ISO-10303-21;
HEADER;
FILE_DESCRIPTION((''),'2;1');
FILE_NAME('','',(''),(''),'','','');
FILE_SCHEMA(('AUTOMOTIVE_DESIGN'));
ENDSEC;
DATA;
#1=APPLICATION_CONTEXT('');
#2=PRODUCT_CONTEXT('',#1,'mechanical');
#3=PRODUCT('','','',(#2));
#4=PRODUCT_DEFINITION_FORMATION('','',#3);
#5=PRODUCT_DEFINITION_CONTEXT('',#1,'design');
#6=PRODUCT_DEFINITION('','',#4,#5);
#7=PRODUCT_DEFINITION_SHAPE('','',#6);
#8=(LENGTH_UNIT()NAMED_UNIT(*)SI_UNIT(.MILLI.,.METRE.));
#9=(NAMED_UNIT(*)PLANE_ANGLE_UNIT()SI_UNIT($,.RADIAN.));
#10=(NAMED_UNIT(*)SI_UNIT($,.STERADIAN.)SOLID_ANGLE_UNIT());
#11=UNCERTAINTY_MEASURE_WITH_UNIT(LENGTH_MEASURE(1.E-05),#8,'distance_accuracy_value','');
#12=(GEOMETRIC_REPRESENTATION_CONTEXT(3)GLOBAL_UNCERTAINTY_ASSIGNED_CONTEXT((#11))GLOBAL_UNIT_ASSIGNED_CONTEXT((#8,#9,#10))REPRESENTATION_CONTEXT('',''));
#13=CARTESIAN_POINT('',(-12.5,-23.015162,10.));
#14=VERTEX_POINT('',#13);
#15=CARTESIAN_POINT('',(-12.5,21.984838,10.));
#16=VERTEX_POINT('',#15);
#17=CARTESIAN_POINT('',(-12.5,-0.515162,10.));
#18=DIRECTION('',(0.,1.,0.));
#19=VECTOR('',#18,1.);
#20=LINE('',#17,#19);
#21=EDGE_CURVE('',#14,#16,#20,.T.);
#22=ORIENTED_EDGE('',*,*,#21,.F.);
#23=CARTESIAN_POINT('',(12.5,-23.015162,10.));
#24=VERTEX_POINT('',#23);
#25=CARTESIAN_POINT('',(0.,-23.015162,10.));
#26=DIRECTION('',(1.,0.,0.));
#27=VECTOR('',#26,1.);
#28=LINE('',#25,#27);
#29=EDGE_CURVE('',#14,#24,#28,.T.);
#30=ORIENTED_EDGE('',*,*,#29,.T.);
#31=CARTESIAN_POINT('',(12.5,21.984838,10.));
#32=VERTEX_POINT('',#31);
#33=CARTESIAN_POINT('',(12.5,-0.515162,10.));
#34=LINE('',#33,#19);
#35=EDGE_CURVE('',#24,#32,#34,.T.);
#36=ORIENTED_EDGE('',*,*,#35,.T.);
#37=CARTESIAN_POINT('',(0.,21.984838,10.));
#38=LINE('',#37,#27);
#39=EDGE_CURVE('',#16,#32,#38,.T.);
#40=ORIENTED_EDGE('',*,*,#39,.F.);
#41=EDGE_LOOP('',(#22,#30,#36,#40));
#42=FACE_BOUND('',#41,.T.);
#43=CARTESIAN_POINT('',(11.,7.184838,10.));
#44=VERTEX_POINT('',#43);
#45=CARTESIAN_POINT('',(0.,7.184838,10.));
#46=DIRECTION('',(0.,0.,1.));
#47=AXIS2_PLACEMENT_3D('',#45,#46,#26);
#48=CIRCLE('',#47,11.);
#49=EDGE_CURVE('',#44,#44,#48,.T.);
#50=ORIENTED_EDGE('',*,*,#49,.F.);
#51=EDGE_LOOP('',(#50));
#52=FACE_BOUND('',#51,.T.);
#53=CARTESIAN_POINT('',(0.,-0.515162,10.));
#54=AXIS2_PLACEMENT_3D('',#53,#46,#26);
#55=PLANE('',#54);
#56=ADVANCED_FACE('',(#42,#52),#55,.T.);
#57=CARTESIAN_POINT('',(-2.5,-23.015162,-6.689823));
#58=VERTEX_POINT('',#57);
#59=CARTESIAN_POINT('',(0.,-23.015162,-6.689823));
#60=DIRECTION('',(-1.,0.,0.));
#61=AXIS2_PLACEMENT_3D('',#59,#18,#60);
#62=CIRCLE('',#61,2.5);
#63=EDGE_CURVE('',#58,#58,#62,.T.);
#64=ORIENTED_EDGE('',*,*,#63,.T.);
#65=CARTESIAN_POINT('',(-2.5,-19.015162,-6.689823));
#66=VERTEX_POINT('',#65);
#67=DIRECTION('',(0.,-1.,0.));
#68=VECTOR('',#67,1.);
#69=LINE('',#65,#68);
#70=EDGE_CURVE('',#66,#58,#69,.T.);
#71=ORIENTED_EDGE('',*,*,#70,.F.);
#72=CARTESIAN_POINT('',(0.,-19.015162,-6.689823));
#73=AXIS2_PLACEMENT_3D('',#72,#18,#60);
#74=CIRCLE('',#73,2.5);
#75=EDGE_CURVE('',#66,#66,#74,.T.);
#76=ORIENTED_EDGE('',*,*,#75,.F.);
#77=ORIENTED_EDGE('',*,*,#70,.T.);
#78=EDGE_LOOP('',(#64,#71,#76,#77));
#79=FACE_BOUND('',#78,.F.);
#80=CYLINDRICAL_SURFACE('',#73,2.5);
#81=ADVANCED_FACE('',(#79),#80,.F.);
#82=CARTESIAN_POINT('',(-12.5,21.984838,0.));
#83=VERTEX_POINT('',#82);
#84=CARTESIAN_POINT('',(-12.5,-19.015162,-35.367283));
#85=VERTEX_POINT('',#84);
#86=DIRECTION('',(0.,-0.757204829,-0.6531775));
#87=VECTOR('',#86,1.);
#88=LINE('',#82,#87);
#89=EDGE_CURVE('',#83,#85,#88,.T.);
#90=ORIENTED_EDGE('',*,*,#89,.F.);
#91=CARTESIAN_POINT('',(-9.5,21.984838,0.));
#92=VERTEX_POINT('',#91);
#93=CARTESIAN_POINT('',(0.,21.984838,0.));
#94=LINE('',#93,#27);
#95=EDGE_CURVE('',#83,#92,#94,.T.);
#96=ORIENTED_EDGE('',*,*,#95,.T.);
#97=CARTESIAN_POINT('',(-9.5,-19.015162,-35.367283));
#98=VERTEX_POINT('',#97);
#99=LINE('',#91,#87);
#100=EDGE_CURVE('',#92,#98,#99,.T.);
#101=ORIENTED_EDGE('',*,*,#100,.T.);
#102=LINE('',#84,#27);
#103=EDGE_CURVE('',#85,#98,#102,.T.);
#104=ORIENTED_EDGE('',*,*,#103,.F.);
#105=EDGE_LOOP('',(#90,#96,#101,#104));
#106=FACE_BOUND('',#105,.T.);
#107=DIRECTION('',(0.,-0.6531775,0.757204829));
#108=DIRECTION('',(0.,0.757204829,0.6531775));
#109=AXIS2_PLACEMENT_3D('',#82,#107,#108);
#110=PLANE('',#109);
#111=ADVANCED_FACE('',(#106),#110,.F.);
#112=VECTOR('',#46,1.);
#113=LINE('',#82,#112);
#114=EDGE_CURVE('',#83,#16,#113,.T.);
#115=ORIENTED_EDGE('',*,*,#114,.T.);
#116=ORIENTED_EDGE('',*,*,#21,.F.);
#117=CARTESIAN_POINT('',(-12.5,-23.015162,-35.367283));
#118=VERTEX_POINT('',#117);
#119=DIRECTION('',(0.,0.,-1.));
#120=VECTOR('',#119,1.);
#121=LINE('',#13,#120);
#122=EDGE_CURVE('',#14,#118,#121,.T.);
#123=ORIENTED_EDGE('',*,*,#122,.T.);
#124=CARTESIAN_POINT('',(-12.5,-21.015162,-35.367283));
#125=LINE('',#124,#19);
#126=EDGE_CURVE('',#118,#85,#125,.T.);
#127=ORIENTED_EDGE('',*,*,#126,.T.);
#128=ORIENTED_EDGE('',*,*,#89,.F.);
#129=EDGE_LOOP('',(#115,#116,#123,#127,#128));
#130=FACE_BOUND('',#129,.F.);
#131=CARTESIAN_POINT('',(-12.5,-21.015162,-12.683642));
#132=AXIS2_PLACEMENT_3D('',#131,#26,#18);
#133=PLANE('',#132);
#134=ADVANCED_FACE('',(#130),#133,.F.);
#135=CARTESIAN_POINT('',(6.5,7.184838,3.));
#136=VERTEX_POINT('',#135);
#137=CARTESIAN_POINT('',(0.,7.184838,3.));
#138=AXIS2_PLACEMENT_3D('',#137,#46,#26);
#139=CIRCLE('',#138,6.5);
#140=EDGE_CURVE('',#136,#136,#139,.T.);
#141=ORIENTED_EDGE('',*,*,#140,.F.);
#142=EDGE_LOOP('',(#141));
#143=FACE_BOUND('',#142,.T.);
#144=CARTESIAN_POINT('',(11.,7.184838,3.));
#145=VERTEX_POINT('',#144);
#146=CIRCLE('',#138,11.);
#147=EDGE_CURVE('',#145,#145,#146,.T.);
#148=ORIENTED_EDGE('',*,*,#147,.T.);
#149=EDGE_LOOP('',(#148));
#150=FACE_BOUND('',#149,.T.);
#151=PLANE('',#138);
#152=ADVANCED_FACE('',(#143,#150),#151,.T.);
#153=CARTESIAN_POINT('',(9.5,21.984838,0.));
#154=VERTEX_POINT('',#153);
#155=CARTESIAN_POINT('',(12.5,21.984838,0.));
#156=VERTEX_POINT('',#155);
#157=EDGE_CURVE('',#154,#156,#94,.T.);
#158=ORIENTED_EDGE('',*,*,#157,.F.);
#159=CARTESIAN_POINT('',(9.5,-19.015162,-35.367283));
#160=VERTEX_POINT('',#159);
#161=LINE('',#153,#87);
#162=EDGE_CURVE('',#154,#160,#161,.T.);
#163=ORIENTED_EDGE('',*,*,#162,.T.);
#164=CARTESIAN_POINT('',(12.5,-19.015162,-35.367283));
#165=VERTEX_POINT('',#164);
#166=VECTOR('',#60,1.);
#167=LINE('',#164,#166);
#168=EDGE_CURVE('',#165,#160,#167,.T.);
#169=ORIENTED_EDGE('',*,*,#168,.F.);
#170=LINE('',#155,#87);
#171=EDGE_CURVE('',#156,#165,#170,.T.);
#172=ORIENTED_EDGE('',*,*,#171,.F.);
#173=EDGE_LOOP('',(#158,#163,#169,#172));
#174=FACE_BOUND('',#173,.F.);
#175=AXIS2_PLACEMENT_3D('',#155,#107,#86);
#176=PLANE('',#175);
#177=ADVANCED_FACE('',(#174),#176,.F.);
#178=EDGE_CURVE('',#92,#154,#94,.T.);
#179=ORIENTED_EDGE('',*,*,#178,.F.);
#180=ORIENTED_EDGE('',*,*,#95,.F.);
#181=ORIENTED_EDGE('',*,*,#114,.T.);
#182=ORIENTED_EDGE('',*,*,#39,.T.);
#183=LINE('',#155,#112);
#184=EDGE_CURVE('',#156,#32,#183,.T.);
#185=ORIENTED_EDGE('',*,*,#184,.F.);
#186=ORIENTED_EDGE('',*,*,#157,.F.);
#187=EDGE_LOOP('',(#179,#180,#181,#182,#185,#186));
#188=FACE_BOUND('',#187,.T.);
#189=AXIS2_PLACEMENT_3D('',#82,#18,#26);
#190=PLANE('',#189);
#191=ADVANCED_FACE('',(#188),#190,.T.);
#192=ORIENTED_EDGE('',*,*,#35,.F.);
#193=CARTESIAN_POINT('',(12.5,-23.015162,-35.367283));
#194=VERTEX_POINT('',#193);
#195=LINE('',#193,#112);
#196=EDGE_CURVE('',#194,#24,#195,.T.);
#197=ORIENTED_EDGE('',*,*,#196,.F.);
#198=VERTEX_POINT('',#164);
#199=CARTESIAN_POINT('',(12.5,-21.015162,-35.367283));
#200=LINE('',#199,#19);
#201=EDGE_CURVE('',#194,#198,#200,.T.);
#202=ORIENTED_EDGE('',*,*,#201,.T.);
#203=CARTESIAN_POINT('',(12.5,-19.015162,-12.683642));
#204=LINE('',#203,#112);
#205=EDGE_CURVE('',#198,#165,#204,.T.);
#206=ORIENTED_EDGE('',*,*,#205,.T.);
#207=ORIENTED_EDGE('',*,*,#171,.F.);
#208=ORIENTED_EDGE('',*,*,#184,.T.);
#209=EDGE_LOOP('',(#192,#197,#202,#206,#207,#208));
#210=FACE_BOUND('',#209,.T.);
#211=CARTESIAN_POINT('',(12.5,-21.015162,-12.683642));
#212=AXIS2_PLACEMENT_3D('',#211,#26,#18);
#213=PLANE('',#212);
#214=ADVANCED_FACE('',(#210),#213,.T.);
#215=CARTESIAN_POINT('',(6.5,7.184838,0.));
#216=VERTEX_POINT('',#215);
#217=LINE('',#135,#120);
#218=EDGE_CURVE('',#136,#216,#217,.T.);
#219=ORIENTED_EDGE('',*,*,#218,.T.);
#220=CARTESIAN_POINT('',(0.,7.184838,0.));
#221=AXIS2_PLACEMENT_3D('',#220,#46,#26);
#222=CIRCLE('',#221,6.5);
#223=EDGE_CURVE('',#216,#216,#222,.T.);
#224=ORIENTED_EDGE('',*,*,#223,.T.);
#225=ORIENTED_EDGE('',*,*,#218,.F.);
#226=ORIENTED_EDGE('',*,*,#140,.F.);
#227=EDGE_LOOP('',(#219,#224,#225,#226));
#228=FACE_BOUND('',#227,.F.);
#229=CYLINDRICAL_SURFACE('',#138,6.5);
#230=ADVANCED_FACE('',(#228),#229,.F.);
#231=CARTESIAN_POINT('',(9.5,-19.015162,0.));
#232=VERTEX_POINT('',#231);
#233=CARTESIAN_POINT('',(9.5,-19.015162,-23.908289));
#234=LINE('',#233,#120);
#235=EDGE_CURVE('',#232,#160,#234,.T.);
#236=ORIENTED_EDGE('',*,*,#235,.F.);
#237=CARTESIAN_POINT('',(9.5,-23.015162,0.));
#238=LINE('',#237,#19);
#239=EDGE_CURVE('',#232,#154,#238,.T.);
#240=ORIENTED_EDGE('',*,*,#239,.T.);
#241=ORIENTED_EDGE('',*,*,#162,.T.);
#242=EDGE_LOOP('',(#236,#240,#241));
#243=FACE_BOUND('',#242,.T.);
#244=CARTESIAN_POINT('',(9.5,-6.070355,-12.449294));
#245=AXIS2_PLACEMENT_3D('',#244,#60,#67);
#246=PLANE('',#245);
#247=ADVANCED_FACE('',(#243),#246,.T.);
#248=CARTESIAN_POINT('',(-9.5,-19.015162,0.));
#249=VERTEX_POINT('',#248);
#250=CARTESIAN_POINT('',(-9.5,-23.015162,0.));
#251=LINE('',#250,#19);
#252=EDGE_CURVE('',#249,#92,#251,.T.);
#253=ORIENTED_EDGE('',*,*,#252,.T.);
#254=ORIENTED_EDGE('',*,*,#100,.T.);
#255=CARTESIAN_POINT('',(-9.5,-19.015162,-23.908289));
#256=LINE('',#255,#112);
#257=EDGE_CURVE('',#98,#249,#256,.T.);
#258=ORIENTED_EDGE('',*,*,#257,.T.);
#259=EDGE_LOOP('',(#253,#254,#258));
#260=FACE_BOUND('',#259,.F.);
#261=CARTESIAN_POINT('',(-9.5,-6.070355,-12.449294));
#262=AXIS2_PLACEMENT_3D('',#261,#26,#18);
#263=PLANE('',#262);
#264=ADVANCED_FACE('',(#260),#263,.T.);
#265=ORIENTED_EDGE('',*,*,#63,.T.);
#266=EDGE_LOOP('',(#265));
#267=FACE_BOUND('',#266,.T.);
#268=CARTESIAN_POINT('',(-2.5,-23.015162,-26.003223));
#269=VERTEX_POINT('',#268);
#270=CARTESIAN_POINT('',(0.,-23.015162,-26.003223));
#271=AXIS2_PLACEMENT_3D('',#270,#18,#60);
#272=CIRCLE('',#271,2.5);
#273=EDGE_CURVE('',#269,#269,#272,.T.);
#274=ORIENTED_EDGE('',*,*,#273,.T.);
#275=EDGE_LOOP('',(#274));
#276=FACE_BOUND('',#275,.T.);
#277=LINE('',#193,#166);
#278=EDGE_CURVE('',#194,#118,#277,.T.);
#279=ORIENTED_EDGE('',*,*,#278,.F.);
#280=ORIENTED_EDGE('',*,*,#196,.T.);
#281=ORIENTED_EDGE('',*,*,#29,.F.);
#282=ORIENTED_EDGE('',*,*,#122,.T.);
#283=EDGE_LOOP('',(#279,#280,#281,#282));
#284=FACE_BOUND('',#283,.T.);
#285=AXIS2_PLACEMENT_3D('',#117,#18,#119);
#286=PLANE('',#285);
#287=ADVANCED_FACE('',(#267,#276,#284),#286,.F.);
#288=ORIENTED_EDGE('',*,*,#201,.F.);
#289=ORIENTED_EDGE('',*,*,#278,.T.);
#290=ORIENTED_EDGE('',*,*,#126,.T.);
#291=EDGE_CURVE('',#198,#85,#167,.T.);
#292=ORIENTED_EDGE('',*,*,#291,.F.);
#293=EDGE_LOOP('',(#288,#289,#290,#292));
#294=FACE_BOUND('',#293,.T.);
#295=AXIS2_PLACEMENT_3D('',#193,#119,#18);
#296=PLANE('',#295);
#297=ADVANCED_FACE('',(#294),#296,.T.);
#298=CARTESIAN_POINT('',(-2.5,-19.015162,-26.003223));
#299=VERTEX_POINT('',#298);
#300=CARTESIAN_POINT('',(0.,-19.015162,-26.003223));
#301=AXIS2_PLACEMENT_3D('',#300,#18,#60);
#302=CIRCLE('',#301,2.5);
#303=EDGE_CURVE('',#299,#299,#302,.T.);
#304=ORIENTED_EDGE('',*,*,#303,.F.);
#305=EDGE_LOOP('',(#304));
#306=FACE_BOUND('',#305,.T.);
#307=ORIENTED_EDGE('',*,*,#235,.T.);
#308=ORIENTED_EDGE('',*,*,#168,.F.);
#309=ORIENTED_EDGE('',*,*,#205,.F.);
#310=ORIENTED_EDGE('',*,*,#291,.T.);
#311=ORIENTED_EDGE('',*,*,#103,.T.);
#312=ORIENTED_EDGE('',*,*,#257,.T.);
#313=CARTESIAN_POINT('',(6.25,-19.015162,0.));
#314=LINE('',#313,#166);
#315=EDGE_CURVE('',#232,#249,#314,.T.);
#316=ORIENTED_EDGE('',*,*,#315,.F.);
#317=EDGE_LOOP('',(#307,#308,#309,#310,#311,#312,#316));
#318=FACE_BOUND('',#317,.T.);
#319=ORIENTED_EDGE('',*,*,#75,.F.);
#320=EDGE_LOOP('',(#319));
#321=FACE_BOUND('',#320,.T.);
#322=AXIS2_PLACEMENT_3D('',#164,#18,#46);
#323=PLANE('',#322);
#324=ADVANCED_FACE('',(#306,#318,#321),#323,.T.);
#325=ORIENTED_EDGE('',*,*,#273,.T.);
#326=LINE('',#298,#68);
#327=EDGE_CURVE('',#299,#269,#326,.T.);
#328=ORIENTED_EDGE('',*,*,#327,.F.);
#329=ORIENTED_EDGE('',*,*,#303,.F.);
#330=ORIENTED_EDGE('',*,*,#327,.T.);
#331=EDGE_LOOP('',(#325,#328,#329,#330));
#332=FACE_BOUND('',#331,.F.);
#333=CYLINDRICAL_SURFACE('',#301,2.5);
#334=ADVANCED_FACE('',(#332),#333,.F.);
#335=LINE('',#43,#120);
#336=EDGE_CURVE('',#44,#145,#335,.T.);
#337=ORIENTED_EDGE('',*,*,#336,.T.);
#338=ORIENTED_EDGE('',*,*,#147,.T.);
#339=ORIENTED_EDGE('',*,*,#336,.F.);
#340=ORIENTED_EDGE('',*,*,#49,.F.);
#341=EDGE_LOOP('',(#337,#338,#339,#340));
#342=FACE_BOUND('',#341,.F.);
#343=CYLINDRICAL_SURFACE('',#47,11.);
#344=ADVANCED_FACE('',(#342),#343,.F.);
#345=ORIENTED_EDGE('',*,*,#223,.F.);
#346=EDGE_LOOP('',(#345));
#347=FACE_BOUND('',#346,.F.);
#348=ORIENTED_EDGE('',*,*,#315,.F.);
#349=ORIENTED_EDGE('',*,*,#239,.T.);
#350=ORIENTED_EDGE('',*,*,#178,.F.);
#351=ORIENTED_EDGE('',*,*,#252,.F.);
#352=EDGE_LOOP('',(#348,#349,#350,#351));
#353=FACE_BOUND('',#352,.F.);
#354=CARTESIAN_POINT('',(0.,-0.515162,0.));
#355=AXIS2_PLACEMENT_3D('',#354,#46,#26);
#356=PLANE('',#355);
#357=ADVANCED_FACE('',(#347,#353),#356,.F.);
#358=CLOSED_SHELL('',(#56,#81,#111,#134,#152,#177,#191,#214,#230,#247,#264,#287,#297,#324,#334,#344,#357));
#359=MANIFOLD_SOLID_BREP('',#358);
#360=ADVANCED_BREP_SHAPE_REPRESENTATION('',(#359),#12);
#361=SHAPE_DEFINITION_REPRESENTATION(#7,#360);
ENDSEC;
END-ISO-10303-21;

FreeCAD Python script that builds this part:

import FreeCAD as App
import Part
import Sketcher
from FreeCAD import Vector
Q = App.Units.Quantity

doc = App.newDocument("Part")
body = doc.addObject("PartDesign::Body", "Body")

# Sketch on XY plane
sketch1 = doc.addObject("Sketcher::SketchObject", "Sketch")
body.addObject(sketch1)
sketch1.AttachmentSupport = (doc.XY_Plane, [""])
sketch1.MapMode = "FlatFace"
sketch1.addGeometry(Part.LineSegment(Vector(-12.5, 21.984838, 0), Vector(-12.5, -23.015162, 0)), False)
sketch1.addGeometry(Part.LineSegment(Vector(-12.5, -23.015162, 0), Vector(12.5, -23.015162, 0)), False)
sketch1.addGeometry(Part.LineSegment(Vector(12.5, -23.015162, 0), Vector(12.5, 21.984838, 0)), False)
sketch1.addGeometry(Part.LineSegment(Vector(12.5, 21.984838, 0), Vector(-12.5, 21.984838, 0)), False)
sketch1.addConstraint(Sketcher.Constraint("Coincident", 0, 2, 1, 1))
sketch1.addConstraint(Sketcher.Constraint("Coincident", 1, 2, 2, 1))
sketch1.addConstraint(Sketcher.Constraint("Coincident", 2, 2, 3, 1))
sketch1.addConstraint(Sketcher.Constraint("Coincident", 3, 2, 0, 1))
sketch1.addConstraint(Sketcher.Constraint("Vertical", 0))
sketch1.addConstraint(Sketcher.Constraint("Horizontal", 1))
sketch1.addConstraint(Sketcher.Constraint("Vertical", 2))
sketch1.addConstraint(Sketcher.Constraint("Horizontal", 3))
sketch1.addConstraint(Sketcher.Constraint("DistanceX", 1, 1, 1, 2, Q("25 mm")))
sketch1.addConstraint(Sketcher.Constraint("DistanceY", 0, 2, 0, 1, Q("45 mm")))
sketch1.addConstraint(Sketcher.Constraint("DistanceX", 0, 2, -1, 1, Q("12.5 mm")))
sketch1.addConstraint(Sketcher.Constraint("DistanceY", 0, 2, -1, 1, Q("23.015162 mm")))
pad1 = doc.addObject("PartDesign::Pad", "Pad")
body.addObject(pad1)
pad1.Profile = sketch1
pad1.Length = 10

# Sketch on XY plane
sketch2 = doc.addObject("Sketcher::SketchObject", "Sketch001")
body.addObject(sketch2)
sketch2.AttachmentSupport = (doc.XY_Plane, [""])
sketch2.MapMode = "FlatFace"
sketch2.AttachmentOffset = App.Placement(Vector(0, 0, 10), App.Rotation())
sketch2.addGeometry(Part.Circle(Vector(0, 7.184838, 0), Vector(0, 0, 1), 11), False)
sketch2.addConstraint(Sketcher.Constraint("PointOnObject", 0, 3, -2))
sketch2.addConstraint(Sketcher.Constraint("Diameter", 0, Q("22 mm")))
sketch2.addConstraint(Sketcher.Constraint("DistanceY", -1, 1, 0, 3, Q("7.184838 mm")))
pocket1 = doc.addObject("PartDesign::Pocket", "Pocket")
body.addObject(pocket1)
pocket1.Profile = sketch2
pocket1.Length = 7

# Sketch on YZ plane
sketch3 = doc.addObject("Sketcher::SketchObject", "Sketch002")
body.addObject(sketch3)
sketch3.AttachmentSupport = (doc.YZ_Plane, [""])
sketch3.MapMode = "FlatFace"
sketch3.AttachmentOffset = App.Placement(Vector(0, 0, 12.5), App.Rotation())
sketch3.addGeometry(Part.LineSegment(Vector(21.984838, 0, 0), Vector(-23.015162, 0, 0)), False)
sketch3.addGeometry(Part.LineSegment(Vector(-23.015162, 0, 0), Vector(-23.015162, -35.367283, 0)), False)
sketch3.addGeometry(Part.LineSegment(Vector(-23.015162, -35.367283, 0), Vector(-19.015162, -35.367283, 0)), False)
sketch3.addGeometry(Part.LineSegment(Vector(-19.015162, -35.367283, 0), Vector(21.984838, 0, 0)), False)
sketch3.addConstraint(Sketcher.Constraint("Coincident", 0, 2, 1, 1))
sketch3.addConstraint(Sketcher.Constraint("Coincident", 1, 2, 2, 1))
sketch3.addConstraint(Sketcher.Constraint("Coincident", 2, 2, 3, 1))
sketch3.addConstraint(Sketcher.Constraint("Coincident", 3, 2, 0, 1))
sketch3.addConstraint(Sketcher.Constraint("Horizontal", 0))
sketch3.addConstraint(Sketcher.Constraint("Vertical", 1))
sketch3.addConstraint(Sketcher.Constraint("Horizontal", 2))
sketch3.addConstraint(Sketcher.Constraint("PointOnObject", 0, 2, -1))
sketch3.addConstraint(Sketcher.Constraint("DistanceX", 0, 2, 0, 1, Q("45 mm")))
sketch3.addConstraint(Sketcher.Constraint("DistanceX", 2, 1, 2, 2, Q("4 mm")))
sketch3.addConstraint(Sketcher.Constraint("Distance", 3, Q("54.146511 mm")))
sketch3.addConstraint(Sketcher.Constraint("DistanceX", 0, 2, -1, 1, Q("23.015162 mm")))
pad2 = doc.addObject("PartDesign::Pad", "Pad001")
body.addObject(pad2)
pad2.Profile = sketch3
pad2.Length = 3
pad2.Reversed = True

# Sketch on YZ plane
sketch4 = doc.addObject("Sketcher::SketchObject", "Sketch003")
body.addObject(sketch4)
sketch4.AttachmentSupport = (doc.YZ_Plane, [""])
sketch4.MapMode = "FlatFace"
sketch4.AttachmentOffset = App.Placement(Vector(0, 0, 12.5), App.Rotation())
sketch4.addGeometry(Part.LineSegment(Vector(-23.015162, 9.999999, 0), Vector(-23.015162, -35.367283, 0)), False)
sketch4.addGeometry(Part.LineSegment(Vector(-23.015162, -35.367283, 0), Vector(-19.015162, -35.367283, 0)), False)
sketch4.addGeometry(Part.LineSegment(Vector(-19.015162, -35.367283, 0), Vector(-19.015162, 9.999999, 0)), False)
sketch4.addGeometry(Part.LineSegment(Vector(-19.015162, 9.999999, 0), Vector(-23.015162, 9.999999, 0)), False)
sketch4.addConstraint(Sketcher.Constraint("Coincident", 0, 2, 1, 1))
sketch4.addConstraint(Sketcher.Constraint("Coincident", 1, 2, 2, 1))
sketch4.addConstraint(Sketcher.Constraint("Coincident", 2, 2, 3, 1))
sketch4.addConstraint(Sketcher.Constraint("Coincident", 3, 2, 0, 1))
sketch4.addConstraint(Sketcher.Constraint("Vertical", 0))
sketch4.addConstraint(Sketcher.Constraint("Horizontal", 1))
sketch4.addConstraint(Sketcher.Constraint("Vertical", 2))
sketch4.addConstraint(Sketcher.Constraint("Horizontal", 3))
sketch4.addConstraint(Sketcher.Constraint("DistanceX", 1, 1, 1, 2, Q("4 mm")))
sketch4.addConstraint(Sketcher.Constraint("DistanceY", -1, 1, 2, 2, Q("9.999999 mm")))
sketch4.addConstraint(Sketcher.Constraint("DistanceY", 0, 2, 0, 1, Q("45.367283 mm")))
sketch4.addConstraint(Sketcher.Constraint("DistanceX", 0, 2, -1, 1, Q("23.015162 mm")))
pad3 = doc.addObject("PartDesign::Pad", "Pad002")
body.addObject(pad3)
pad3.Profile = sketch4
pad3.Length = 25
pad3.Reversed = True
doc.recompute()

mirrored = doc.addObject("PartDesign::Mirrored", "Mirrored")
body.addObject(mirrored)
mirrored.Originals = [pad2]
mirrored.MirrorPlane = (doc.YZ_Plane, [""])
body.Tip = mirrored

# Sketch on XY plane
sketch5 = doc.addObject("Sketcher::SketchObject", "Sketch004")
body.addObject(sketch5)
sketch5.AttachmentSupport = (doc.XY_Plane, [""])
sketch5.MapMode = "FlatFace"
sketch5.AttachmentOffset = App.Placement(Vector(0, 0, 3), App.Rotation())
sketch5.addGeometry(Part.Circle(Vector(0, 7.184838, 0), Vector(0, 0, 1), 6.5), False)
sketch5.addConstraint(Sketcher.Constraint("PointOnObject", 0, 3, -2))
sketch5.addConstraint(Sketcher.Constraint("Diameter", 0, Q("13 mm")))
sketch5.addConstraint(Sketcher.Constraint("DistanceY", -1, 1, 0, 3, Q("7.184838 mm")))
pocket2 = doc.addObject("PartDesign::Pocket", "Pocket001")
body.addObject(pocket2)
pocket2.Profile = sketch5
pocket2.Length = 5

# Sketch on XZ plane
sketch6 = doc.addObject("Sketcher::SketchObject", "Sketch005")
body.addObject(sketch6)
sketch6.AttachmentSupport = (doc.XZ_Plane, [""])
sketch6.MapMode = "FlatFace"
sketch6.AttachmentOffset = App.Placement(Vector(0, 0, 19.015162), App.Rotation())
sketch6.addGeometry(Part.Circle(Vector(0, -6.689823, 0), Vector(0, 0, 1), 2.5), False)
sketch6.addGeometry(Part.Circle(Vector(0, -26.003223, 0), Vector(0, 0, 1), 2.5), False)
sketch6.addConstraint(Sketcher.Constraint("Equal", 0, 1))
sketch6.addConstraint(Sketcher.Constraint("PointOnObject", 0, 3, -2))
sketch6.addConstraint(Sketcher.Constraint("PointOnObject", 1, 3, -2))
sketch6.addConstraint(Sketcher.Constraint("Diameter", 0, Q("5 mm")))
sketch6.addConstraint(Sketcher.Constraint("DistanceY", 1, 3, 0, 3, Q("19.3134 mm")))
sketch6.addConstraint(Sketcher.Constraint("DistanceY", 0, 3, -1, 1, Q("6.689823 mm")))
pocket3 = doc.addObject("PartDesign::Pocket", "Pocket002")
body.addObject(pocket3)
pocket3.Profile = sketch6
pocket3.Length = 5
pocket3.Reversed = True

doc.recompute()
